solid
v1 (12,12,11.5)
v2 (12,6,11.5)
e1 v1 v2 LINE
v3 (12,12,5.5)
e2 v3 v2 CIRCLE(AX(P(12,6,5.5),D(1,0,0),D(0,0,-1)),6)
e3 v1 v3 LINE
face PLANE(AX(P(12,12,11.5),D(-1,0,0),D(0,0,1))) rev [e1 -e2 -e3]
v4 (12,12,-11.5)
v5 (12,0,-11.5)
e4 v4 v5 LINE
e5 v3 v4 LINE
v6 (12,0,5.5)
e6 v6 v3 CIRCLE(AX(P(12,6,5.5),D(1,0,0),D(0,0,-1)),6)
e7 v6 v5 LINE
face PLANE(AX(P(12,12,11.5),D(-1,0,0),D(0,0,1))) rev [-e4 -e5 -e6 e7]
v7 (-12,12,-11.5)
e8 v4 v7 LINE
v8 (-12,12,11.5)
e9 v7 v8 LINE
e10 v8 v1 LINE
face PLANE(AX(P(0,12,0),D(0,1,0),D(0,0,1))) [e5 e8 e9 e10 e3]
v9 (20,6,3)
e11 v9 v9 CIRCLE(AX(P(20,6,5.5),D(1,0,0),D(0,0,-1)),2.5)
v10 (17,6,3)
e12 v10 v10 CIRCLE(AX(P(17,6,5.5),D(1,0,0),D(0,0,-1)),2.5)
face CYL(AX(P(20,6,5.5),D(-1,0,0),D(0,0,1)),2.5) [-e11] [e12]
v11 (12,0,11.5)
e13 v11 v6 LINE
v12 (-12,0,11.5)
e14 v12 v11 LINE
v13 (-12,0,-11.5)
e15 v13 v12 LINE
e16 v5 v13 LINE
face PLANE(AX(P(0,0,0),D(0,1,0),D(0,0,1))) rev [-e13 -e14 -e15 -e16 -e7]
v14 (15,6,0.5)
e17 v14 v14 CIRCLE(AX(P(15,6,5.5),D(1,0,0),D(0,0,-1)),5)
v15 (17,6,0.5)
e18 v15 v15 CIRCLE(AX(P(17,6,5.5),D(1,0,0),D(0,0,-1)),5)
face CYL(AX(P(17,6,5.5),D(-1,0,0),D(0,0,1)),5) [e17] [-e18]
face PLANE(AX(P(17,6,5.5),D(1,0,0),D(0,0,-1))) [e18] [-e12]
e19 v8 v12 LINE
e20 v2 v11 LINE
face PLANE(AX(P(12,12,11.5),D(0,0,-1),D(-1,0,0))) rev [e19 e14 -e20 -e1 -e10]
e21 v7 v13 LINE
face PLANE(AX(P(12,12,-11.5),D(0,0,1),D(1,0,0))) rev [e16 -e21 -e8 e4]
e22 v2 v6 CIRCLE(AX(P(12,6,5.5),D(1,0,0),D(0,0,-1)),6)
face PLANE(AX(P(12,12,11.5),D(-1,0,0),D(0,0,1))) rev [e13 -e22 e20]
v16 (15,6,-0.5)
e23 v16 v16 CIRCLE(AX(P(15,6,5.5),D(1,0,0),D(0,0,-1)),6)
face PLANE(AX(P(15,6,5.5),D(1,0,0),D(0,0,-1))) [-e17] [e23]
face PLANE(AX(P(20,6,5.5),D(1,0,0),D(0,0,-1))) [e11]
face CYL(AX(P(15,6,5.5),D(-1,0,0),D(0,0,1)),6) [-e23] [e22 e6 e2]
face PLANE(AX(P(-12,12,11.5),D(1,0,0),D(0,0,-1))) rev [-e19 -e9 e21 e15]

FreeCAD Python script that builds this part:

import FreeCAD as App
import Part
import Sketcher
from FreeCAD import Vector


def add_polygon(sketch, points):
    """Adds a closed chain of lines whose ends are joined by coincident constraints."""
    first, n = sketch.GeometryCount, len(points)
    for a, b in zip(points, points[1:] + points[:1]):
        sketch.addGeometry(Part.LineSegment(App.Vector(*a, 0), App.Vector(*b, 0)), False)
    for i in range(n):
        sketch.addConstraint(Sketcher.Constraint("Coincident", first + i, 2, first + (i + 1) % n, 1))

doc = App.newDocument("Part")
params = doc.addObject("Spreadsheet::Sheet", "Params")
for row, (alias, value) in enumerate([
    ("sketch1_width", "24 mm"),
    ("sketch1_height", "23 mm"),
    ("pad1_length", "12 mm"),
    ("sketch2_diameter", "12 mm"),
    ("pad2_length", "3 mm"),
    ("sketch3_diameter", "10 mm"),
    ("pad3_length", "2 mm"),
    ("sketch4_diameter", "5 mm"),
    ("pad4_length", "3 mm"),
], start=1):
    params.set(f"A{row}", alias)
    params.set(f"B{row}", "=" + value)
    params.setAlias(f"B{row}", alias)

body = doc.addObject("PartDesign::Body", "Body")

sketch1 = doc.addObject("Sketcher::SketchObject", "Sketch")
body.addObject(sketch1)
sketch1.AttachmentSupport = (doc.XZ_Plane, [""])
sketch1.MapMode = "FlatFace"
add_polygon(sketch1, [(-12, -11.5), (-12, 11.5), (12, 11.5), (12, -11.5)])
sketch1.addConstraint([
    Sketcher.Constraint("Vertical", 0),
    Sketcher.Constraint("Horizontal", 1),
    Sketcher.Constraint("Vertical", 2),
    Sketcher.Constraint("Horizontal", 3),
    Sketcher.Constraint("Symmetric", 0, 2, 2, 2, -1, 1),
    Sketcher.Constraint("DistanceX", 1, 1, 1, 2, 24.0),
    Sketcher.Constraint("DistanceY", 0, 1, 0, 2, 23.0),
])
sketch1.setExpression("Constraints[9]", "Params.sketch1_width")
sketch1.setExpression("Constraints[10]", "Params.sketch1_height")
pad1 = doc.addObject("PartDesign::Pad", "Pad")
body.addObject(pad1)
pad1.Profile = sketch1
pad1.setExpression("Length", "Params.pad1_length")
pad1.Reversed = True

sketch2 = doc.addObject("Sketcher::SketchObject", "Sketch001")
body.addObject(sketch2)
sketch2.AttachmentSupport = (doc.YZ_Plane, [""])
sketch2.MapMode = "FlatFace"
sketch2.AttachmentOffset = App.Placement(Vector(0, 0, 12), App.Rotation())
sketch2.addGeometry(Part.Circle(Vector(6, 5.5, 0), Vector(0, 0, 1), 6), False)
sketch2.addConstraint([
    Sketcher.Constraint("Diameter", 0, 12.0),
    Sketcher.Constraint("DistanceX", -1, 1, 0, 3, 6.0),
    Sketcher.Constraint("DistanceY", -1, 1, 0, 3, 5.5),
])
sketch2.setExpression("Constraints[0]", "Params.sketch2_diameter")
pad2 = doc.addObject("PartDesign::Pad", "Pad001")
body.addObject(pad2)
pad2.Profile = sketch2
pad2.setExpression("Length", "Params.pad2_length")

sketch3 = doc.addObject("Sketcher::SketchObject", "Sketch002")
body.addObject(sketch3)
sketch3.AttachmentSupport = (doc.YZ_Plane, [""])
sketch3.MapMode = "FlatFace"
sketch3.AttachmentOffset = App.Placement(Vector(0, 0, 15), App.Rotation())
sketch3.addGeometry(Part.Circle(Vector(6, 5.5, 0), Vector(0, 0, 1), 5), False)
sketch3.addConstraint([
    Sketcher.Constraint("Diameter", 0, 10.0),
    Sketcher.Constraint("DistanceX", -1, 1, 0, 3, 6.0),
    Sketcher.Constraint("DistanceY", -1, 1, 0, 3, 5.5),
])
sketch3.setExpression("Constraints[0]", "Params.sketch3_diameter")
pad3 = doc.addObject("PartDesign::Pad", "Pad002")
body.addObject(pad3)
pad3.Profile = sketch3
pad3.setExpression("Length", "Params.pad3_length")

sketch4 = doc.addObject("Sketcher::SketchObject", "Sketch003")
body.addObject(sketch4)
sketch4.AttachmentSupport = (doc.YZ_Plane, [""])
sketch4.MapMode = "FlatFace"
sketch4.AttachmentOffset = App.Placement(Vector(0, 0, 17), App.Rotation())
sketch4.addGeometry(Part.Circle(Vector(6, 5.5, 0), Vector(0, 0, 1), 2.5), False)
sketch4.addConstraint([
    Sketcher.Constraint("Diameter", 0, 5.0),
    Sketcher.Constraint("DistanceX", -1, 1, 0, 3, 6.0),
    Sketcher.Constraint("DistanceY", -1, 1, 0, 3, 5.5),
])
sketch4.setExpression("Constraints[0]", "Params.sketch4_diameter")
pad4 = doc.addObject("PartDesign::Pad", "Pad003")
body.addObject(pad4)
pad4.Profile = sketch4
pad4.setExpression("Length", "Params.pad4_length")

doc.recompute()
